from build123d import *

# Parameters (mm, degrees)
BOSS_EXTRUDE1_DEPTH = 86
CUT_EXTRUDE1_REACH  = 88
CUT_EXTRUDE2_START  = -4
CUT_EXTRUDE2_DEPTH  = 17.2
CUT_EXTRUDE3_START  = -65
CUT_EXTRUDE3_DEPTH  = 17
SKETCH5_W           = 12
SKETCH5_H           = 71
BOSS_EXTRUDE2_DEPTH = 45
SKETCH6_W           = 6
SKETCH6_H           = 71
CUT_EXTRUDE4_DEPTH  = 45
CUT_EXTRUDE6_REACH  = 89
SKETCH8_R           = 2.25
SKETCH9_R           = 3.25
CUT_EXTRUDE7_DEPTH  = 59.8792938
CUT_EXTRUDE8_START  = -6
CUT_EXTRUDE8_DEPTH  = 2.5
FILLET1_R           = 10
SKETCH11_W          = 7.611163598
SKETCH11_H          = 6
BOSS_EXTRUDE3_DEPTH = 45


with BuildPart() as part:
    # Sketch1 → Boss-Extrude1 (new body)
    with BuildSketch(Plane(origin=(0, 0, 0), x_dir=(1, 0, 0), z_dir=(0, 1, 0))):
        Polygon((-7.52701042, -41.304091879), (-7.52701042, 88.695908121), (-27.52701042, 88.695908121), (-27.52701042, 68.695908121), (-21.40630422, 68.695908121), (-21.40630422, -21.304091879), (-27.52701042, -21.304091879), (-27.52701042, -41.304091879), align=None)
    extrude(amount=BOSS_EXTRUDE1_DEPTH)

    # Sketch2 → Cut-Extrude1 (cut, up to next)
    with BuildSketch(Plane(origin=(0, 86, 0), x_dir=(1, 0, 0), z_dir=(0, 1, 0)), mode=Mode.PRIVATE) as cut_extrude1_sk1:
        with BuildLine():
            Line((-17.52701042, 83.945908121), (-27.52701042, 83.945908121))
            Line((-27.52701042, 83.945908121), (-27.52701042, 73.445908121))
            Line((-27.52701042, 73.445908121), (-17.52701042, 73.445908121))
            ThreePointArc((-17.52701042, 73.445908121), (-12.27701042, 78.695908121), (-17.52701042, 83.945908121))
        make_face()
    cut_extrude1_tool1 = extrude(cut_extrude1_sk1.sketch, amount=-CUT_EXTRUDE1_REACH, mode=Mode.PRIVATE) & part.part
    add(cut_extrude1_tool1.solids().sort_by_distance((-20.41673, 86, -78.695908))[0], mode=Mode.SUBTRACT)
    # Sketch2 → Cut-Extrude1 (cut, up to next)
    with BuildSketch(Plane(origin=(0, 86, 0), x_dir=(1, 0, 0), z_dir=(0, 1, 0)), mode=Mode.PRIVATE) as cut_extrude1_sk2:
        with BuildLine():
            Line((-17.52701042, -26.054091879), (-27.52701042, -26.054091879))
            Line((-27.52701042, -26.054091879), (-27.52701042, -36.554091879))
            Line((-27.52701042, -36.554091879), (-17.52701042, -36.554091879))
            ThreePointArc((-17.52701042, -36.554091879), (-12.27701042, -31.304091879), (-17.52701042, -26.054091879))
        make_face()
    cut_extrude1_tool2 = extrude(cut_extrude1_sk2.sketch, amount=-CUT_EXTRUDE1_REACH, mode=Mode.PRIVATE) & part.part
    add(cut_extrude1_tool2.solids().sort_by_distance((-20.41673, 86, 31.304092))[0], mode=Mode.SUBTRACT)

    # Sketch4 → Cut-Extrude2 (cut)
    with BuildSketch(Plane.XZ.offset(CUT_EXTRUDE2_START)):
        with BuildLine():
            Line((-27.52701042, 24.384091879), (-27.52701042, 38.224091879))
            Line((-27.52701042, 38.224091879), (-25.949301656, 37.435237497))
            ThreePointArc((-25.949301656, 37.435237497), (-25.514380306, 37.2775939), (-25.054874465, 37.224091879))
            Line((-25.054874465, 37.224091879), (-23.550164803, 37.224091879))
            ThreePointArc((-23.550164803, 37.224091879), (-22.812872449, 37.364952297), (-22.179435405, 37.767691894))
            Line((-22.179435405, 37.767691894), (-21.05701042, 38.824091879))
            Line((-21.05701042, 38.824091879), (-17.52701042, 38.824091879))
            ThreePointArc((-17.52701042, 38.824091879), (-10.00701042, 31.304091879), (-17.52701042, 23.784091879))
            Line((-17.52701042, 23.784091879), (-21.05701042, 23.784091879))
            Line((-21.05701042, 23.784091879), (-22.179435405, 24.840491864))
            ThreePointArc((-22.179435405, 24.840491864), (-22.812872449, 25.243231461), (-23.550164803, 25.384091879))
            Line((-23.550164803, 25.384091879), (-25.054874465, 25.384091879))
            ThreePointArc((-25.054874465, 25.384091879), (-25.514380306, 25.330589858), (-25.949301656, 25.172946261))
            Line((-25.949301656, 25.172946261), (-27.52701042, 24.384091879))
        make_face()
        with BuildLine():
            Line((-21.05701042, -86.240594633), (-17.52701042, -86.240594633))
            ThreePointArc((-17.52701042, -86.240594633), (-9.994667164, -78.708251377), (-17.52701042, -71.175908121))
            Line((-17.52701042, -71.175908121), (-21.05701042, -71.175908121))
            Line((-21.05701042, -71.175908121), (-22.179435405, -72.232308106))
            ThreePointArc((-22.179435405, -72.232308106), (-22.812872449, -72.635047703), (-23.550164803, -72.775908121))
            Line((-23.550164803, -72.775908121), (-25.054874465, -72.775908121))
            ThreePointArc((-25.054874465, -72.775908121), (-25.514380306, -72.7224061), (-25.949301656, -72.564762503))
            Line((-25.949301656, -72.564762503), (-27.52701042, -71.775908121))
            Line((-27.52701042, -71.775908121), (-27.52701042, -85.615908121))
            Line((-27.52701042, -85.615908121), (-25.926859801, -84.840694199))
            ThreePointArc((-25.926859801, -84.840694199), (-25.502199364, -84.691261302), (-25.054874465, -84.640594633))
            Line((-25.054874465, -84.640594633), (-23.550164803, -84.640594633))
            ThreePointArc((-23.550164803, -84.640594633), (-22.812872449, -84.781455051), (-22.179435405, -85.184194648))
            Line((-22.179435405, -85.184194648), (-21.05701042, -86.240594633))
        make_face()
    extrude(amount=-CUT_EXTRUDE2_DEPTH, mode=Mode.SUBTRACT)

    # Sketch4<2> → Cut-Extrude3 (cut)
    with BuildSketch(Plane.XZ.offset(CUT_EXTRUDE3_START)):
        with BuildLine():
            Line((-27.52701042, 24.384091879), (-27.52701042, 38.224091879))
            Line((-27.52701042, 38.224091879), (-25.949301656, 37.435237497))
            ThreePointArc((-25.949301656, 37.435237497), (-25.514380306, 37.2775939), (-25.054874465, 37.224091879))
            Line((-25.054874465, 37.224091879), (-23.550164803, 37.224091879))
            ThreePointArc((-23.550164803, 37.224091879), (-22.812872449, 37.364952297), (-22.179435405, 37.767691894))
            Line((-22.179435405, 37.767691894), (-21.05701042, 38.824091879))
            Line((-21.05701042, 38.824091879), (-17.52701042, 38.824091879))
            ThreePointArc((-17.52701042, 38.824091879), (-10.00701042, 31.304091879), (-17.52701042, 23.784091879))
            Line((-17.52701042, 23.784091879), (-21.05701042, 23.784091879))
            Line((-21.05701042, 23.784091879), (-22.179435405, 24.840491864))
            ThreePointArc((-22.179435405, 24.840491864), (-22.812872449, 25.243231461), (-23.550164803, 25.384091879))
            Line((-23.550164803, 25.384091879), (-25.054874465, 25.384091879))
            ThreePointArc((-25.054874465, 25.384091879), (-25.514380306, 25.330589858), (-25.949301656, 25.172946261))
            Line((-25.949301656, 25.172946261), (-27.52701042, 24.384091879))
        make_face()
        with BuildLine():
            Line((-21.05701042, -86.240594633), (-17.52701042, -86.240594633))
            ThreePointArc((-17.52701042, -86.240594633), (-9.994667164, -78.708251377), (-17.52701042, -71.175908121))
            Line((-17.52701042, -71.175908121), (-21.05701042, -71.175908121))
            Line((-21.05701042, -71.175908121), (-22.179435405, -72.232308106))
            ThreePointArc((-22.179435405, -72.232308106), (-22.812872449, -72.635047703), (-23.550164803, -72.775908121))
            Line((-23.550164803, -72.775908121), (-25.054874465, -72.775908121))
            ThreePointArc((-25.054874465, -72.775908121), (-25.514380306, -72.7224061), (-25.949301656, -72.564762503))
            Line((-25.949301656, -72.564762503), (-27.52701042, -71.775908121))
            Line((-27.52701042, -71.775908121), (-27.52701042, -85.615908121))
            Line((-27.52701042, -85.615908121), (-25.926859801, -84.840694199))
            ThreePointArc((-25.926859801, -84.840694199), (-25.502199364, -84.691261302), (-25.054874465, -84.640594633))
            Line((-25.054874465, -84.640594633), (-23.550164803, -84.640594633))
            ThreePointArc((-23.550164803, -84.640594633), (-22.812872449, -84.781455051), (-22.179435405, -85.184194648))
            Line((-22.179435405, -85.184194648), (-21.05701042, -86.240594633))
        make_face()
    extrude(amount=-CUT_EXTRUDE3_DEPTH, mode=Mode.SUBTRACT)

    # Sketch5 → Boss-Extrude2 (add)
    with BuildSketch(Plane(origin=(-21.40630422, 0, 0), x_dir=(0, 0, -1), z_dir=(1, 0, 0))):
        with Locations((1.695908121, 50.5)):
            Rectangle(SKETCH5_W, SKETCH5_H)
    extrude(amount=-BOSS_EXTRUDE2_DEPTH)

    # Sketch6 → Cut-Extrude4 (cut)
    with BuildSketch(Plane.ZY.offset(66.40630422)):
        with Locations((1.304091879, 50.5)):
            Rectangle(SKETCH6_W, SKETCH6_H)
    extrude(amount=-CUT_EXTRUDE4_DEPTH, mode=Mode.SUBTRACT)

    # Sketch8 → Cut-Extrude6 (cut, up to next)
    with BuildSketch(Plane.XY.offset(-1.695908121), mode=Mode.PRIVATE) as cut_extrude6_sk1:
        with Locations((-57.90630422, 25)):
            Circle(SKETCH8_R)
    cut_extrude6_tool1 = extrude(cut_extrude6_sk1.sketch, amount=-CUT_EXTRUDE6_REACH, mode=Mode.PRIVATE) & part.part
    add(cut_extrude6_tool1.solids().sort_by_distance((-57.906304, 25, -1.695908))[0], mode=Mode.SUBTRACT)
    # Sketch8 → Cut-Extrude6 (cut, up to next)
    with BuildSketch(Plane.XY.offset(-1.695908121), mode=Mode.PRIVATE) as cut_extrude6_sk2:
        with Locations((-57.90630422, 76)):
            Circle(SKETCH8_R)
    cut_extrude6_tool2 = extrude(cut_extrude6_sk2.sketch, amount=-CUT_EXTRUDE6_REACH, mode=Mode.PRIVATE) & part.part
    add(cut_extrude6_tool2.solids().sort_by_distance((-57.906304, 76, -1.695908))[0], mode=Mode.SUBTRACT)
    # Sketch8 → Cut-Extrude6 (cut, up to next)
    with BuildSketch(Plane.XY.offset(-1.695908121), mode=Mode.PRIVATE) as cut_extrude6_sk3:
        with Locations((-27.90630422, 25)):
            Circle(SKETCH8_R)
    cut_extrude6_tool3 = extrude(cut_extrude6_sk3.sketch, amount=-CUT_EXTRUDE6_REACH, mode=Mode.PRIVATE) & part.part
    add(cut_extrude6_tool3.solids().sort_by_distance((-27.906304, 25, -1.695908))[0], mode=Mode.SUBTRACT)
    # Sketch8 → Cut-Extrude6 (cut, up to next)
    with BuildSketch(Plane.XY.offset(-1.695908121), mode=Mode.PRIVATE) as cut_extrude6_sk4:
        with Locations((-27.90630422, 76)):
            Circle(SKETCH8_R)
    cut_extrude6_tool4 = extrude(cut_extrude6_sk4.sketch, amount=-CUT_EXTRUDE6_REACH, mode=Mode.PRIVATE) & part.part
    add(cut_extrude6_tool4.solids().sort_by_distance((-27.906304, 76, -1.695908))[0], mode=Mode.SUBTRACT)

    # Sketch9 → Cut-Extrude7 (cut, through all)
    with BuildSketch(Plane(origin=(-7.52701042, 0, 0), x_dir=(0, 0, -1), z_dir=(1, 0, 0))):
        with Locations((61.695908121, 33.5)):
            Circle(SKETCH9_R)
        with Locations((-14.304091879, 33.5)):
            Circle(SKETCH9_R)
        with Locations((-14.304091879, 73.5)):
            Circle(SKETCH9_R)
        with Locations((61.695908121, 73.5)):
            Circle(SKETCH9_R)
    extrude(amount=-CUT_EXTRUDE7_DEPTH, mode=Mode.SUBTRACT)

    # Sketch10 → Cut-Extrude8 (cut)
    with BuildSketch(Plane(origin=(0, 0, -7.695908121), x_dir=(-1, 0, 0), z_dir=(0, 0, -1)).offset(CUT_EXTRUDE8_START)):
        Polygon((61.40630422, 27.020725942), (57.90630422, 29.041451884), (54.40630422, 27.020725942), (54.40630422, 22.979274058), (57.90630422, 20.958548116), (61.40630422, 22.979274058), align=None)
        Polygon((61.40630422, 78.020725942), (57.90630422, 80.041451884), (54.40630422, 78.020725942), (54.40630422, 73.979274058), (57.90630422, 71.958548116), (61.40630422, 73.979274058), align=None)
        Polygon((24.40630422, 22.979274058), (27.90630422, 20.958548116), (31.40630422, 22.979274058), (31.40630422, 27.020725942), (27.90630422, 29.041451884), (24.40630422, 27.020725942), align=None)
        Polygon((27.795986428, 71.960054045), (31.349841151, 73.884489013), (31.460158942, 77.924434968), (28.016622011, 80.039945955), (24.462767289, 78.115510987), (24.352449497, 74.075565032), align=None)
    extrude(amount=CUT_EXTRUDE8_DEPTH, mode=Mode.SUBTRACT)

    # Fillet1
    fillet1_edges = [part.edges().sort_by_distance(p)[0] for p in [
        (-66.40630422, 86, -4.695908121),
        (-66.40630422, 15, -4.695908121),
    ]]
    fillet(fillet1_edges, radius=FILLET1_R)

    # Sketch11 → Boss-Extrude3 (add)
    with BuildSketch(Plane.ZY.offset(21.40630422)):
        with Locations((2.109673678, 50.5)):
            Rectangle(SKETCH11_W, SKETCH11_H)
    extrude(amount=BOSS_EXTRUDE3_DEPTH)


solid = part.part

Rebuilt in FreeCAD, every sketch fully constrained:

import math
import FreeCAD as App
import Part
import Sketcher
Q = App.Units.Quantity


def edges_at(feature, points):
    """Names of the edges that pass closest to the given points."""
    edges = feature.Shape.Edges
    near = lambda p: min(range(len(edges)), key=lambda i: edges[i].distToShape(Part.Vertex(*p))[0])
    return sorted({f"Edge{near(p) + 1}" for p in points})

doc = App.newDocument("Part")
body = doc.addObject("PartDesign::Body", "Body")

# Sketch on XZ plane
sketch1 = body.newObject("Sketcher::SketchObject", "Sketch")
sketch1.AttachmentSupport = (doc.getObject("XZ_Plane"), [""])
sketch1.MapMode = "FlatFace"
sketch1.addGeometry([
    Part.LineSegment(App.Vector(-8, 41, 0), App.Vector(-8, -89, 0)),  # 0
    Part.LineSegment(App.Vector(-8, -89, 0), App.Vector(-28, -89, 0)),  # 1
    Part.LineSegment(App.Vector(-28, -89, 0), App.Vector(-28, -69, 0)),  # 2
    Part.LineSegment(App.Vector(-28, -69, 0), App.Vector(-21, -69, 0)),  # 3
    Part.LineSegment(App.Vector(-21, -69, 0), App.Vector(-21, 21, 0)),  # 4
    Part.LineSegment(App.Vector(-21, 21, 0), App.Vector(-28, 21, 0)),  # 5
    Part.LineSegment(App.Vector(-28, 21, 0), App.Vector(-28, 41, 0)),  # 6
    Part.LineSegment(App.Vector(-28, 41, 0), App.Vector(-8, 41, 0)),  # 7
], False)
sketch1.addConstraint([
    Sketcher.Constraint("Coincident", 0, 2, 1, 1),
    Sketcher.Constraint("Coincident", 1, 2, 2, 1),
    Sketcher.Constraint("Coincident", 2, 2, 3, 1),
    Sketcher.Constraint("Coincident", 3, 2, 4, 1),
    Sketcher.Constraint("Coincident", 4, 2, 5, 1),
    Sketcher.Constraint("Coincident", 5, 2, 6, 1),
    Sketcher.Constraint("Coincident", 6, 2, 7, 1),
    Sketcher.Constraint("Coincident", 7, 2, 0, 1),
    Sketcher.Constraint("Vertical", 0),
    Sketcher.Constraint("Horizontal", 1),
    Sketcher.Constraint("Vertical", 2),
    Sketcher.Constraint("Horizontal", 3),
    Sketcher.Constraint("Vertical", 4),
    Sketcher.Constraint("Horizontal", 5),
    Sketcher.Constraint("Vertical", 6),
    Sketcher.Constraint("Horizontal", 7),
    Sketcher.Constraint("Vertical", 2, 2, 5, 2),
    Sketcher.Constraint("Equal", 7, 2),
    Sketcher.Constraint("Equal", 2, 6),
    Sketcher.Constraint("DistanceX", 1, 2, 1, 1, 20.0),
    Sketcher.Constraint("DistanceY", 0, 2, 0, 1, 130.0),
    Sketcher.Constraint("DistanceX", 3, 1, 3, 2, 6.120706),
    Sketcher.Constraint("DistanceX", 0, 2, -1, 1, 7.52701),
    Sketcher.Constraint("DistanceY", 0, 2, -1, 1, 88.695908),
])
pad1 = body.newObject("PartDesign::Pad", "Pad")
pad1.Profile = sketch1
pad1.Length = 86
pad1.Reversed = True

# Sketch on XZ plane
sketch2 = body.newObject("Sketcher::SketchObject", "Sketch001")
sketch2.AttachmentSupport = (doc.getObject("XZ_Plane"), [""])
sketch2.MapMode = "FlatFace"
sketch2.AttachmentOffset = App.Placement(App.Vector(0, 0, -86), App.Rotation())
sketch2.addGeometry([
    Part.LineSegment(App.Vector(-18, -84, 0), App.Vector(-28, -84, 0)),
    Part.LineSegment(App.Vector(-28, -84, 0), App.Vector(-28, -73, 0)),
    Part.LineSegment(App.Vector(-28, -73, 0), App.Vector(-18, -73, 0)),
    Part.ArcOfCircle(Part.Circle(App.Vector(-18, -79, 0), App.Vector(0, 0, 1), 5), math.radians(-90), math.radians(90)),
], False)
sketch2.addConstraint([
    Sketcher.Constraint("Coincident", 0, 2, 1, 1),
    Sketcher.Constraint("Coincident", 1, 2, 2, 1),
    Sketcher.Constraint("Tangent", 2, 2, 3, 2),
    Sketcher.Constraint("Tangent", 3, 1, 0, 1),
    Sketcher.Constraint("Horizontal", 0),
    Sketcher.Constraint("Vertical", 1),
    Sketcher.Constraint("Horizontal", 2),
    Sketcher.Constraint("DistanceX", 0, 2, 0, 1, 10.0),
    Sketcher.Constraint("Radius", 3, 5.25),
    Sketcher.Constraint("DistanceX", 3, 3, -1, 1, 17.52701),
    Sketcher.Constraint("DistanceY", 3, 3, -1, 1, 78.695908),
])
pocket1 = body.newObject("PartDesign::Pocket", "Pocket")
pocket1.Profile = sketch2
pocket1.Type = "UpToFirst"
pocket1.Reversed = True

# Sketch on XZ plane
sketch3 = body.newObject("Sketcher::SketchObject", "Sketch002")
sketch3.AttachmentSupport = (doc.getObject("XZ_Plane"), [""])
sketch3.MapMode = "FlatFace"
sketch3.AttachmentOffset = App.Placement(App.Vector(0, 0, -86), App.Rotation())
sketch3.addGeometry([
    Part.LineSegment(App.Vector(-18, 26, 0), App.Vector(-28, 26, 0)),
    Part.LineSegment(App.Vector(-28, 26, 0), App.Vector(-28, 37, 0)),
    Part.LineSegment(App.Vector(-28, 37, 0), App.Vector(-18, 37, 0)),
    Part.ArcOfCircle(Part.Circle(App.Vector(-18, 31, 0), App.Vector(0, 0, 1), 5), math.radians(-90), math.radians(90)),
], False)
sketch3.addConstraint([
    Sketcher.Constraint("Coincident", 0, 2, 1, 1),
    Sketcher.Constraint("Coincident", 1, 2, 2, 1),
    Sketcher.Constraint("Tangent", 2, 2, 3, 2),
    Sketcher.Constraint("Tangent", 3, 1, 0, 1),
    Sketcher.Constraint("Horizontal", 0),
    Sketcher.Constraint("Vertical", 1),
    Sketcher.Constraint("Horizontal", 2),
    Sketcher.Constraint("DistanceX", 0, 2, 0, 1, 10.0),
    Sketcher.Constraint("Radius", 3, 5.25),
    Sketcher.Constraint("DistanceX", 3, 3, -1, 1, 17.52701),
    Sketcher.Constraint("DistanceY", -1, 1, 3, 3, 31.304092),
])
pocket2 = body.newObject("PartDesign::Pocket", "Pocket001")
pocket2.Profile = sketch3
pocket2.Type = "UpToFirst"
pocket2.Reversed = True

# Sketch on XZ plane
sketch4 = body.newObject("Sketcher::SketchObject", "Sketch003")
sketch4.AttachmentSupport = (doc.getObject("XZ_Plane"), [""])
sketch4.MapMode = "FlatFace"
sketch4.AttachmentOffset = App.Placement(App.Vector(0, 0, -4), App.Rotation())
sketch4.addGeometry([
    Part.LineSegment(App.Vector(-27.5, 38.2, 0), App.Vector(-27.5, 24.4, 0)),  # 0
    Part.LineSegment(App.Vector(-27.5, 24.4, 0), App.Vector(-25.9, 25.2, 0)),  # 1
    Part.ArcOfCircle(Part.Circle(App.Vector(-25.1, 23.4, 0), App.Vector(0, 0, 1), 2), math.radians(90), math.radians(117)),  # 2
    Part.LineSegment(App.Vector(-25.1, 25.4, 0), App.Vector(-23.6, 25.4, 0)),  # 3
    Part.ArcOfCircle(Part.Circle(App.Vector(-23.6, 23.4, 0), App.Vector(0, 0, 1), 2), math.radians(47), math.radians(90)),  # 4
    Part.LineSegment(App.Vector(-22.2, 24.8, 0), App.Vector(-21.1, 23.8, 0)),  # 5
    Part.LineSegment(App.Vector(-21.1, 23.8, 0), App.Vector(-17.5, 23.8, 0)),  # 6
    Part.ArcOfCircle(Part.Circle(App.Vector(-17.5, 31.3, 0), App.Vector(0, 0, 1), 7.5), math.radians(-90), math.radians(90)),  # 7
    Part.LineSegment(App.Vector(-17.5, 38.8, 0), App.Vector(-21.1, 38.8, 0)),  # 8
    Part.LineSegment(App.Vector(-21.1, 38.8, 0), App.Vector(-22.2, 37.8, 0)),  # 9
    Part.ArcOfCircle(Part.Circle(App.Vector(-23.6, 39.2, 0), App.Vector(0, 0, 1), 2), math.radians(-90), math.radians(-47)),  # 10
    Part.LineSegment(App.Vector(-23.6, 37.2, 0), App.Vector(-25.1, 37.2, 0)),  # 11
    Part.ArcOfCircle(Part.Circle(App.Vector(-25.1, 39.2, 0), App.Vector(0, 0, 1), 2), math.radians(-117), math.radians(-90)),  # 12
    Part.LineSegment(App.Vector(-25.9, 37.4, 0), App.Vector(-27.5, 38.2, 0)),  # 13
    Part.LineSegment(App.Vector(-21.1, -86.2, 0), App.Vector(-17.5, -86.2, 0)),  # 14
    Part.ArcOfCircle(Part.Circle(App.Vector(-17.5, -78.7, 0), App.Vector(0, 0, 1), 7.5), math.radians(-90), math.radians(90)),  # 15
    Part.LineSegment(App.Vector(-17.5, -71.2, 0), App.Vector(-21.1, -71.2, 0)),  # 16
    Part.LineSegment(App.Vector(-21.1, -71.2, 0), App.Vector(-22.2, -72.2, 0)),  # 17
    Part.ArcOfCircle(Part.Circle(App.Vector(-23.6, -70.8, 0), App.Vector(0, 0, 1), 2), math.radians(-90), math.radians(-47)),  # 18
    Part.LineSegment(App.Vector(-23.6, -72.8, 0), App.Vector(-25.1, -72.8, 0)),  # 19
    Part.ArcOfCircle(Part.Circle(App.Vector(-25.1, -70.8, 0), App.Vector(0, 0, 1), 2), math.radians(-117), math.radians(-90)),  # 20
    Part.LineSegment(App.Vector(-25.9, -72.6, 0), App.Vector(-27.5, -71.8, 0)),  # 21
    Part.LineSegment(App.Vector(-27.5, -71.8, 0), App.Vector(-27.5, -85.6, 0)),  # 22
    Part.LineSegment(App.Vector(-27.5, -85.6, 0), App.Vector(-25.9, -84.8, 0)),  # 23
    Part.ArcOfCircle(Part.Circle(App.Vector(-25.1, -86.6, 0), App.Vector(0, 0, 1), 2), math.radians(90), math.radians(116)),  # 24
    Part.LineSegment(App.Vector(-25.1, -84.6, 0), App.Vector(-23.6, -84.6, 0)),  # 25
    Part.ArcOfCircle(Part.Circle(App.Vector(-23.6, -86.6, 0), App.Vector(0, 0, 1), 2), math.radians(47), math.radians(90)),  # 26
    Part.LineSegment(App.Vector(-22.2, -85.2, 0), App.Vector(-21.1, -86.2, 0)),  # 27
], False)
sketch4.addConstraint([
    Sketcher.Constraint("Coincident", 0, 2, 1, 1),
    Sketcher.Constraint("Tangent", 1, 2, 2, 2),
    Sketcher.Constraint("Tangent", 2, 1, 3, 1),
    Sketcher.Constraint("Tangent", 3, 2, 4, 2),
    Sketcher.Constraint("Tangent", 4, 1, 5, 1),
    Sketcher.Constraint("Coincident", 5, 2, 6, 1),
    Sketcher.Constraint("Tangent", 6, 2, 7, 1),
    Sketcher.Constraint("Tangent", 7, 2, 8, 1),
    Sketcher.Constraint("Coincident", 8, 2, 9, 1),
    Sketcher.Constraint("Tangent", 9, 2, 10, 2),
    Sketcher.Constraint("Tangent", 10, 1, 11, 1),
    Sketcher.Constraint("Tangent", 11, 2, 12, 2),
    Sketcher.Constraint("Tangent", 12, 1, 13, 1),
    Sketcher.Constraint("Coincident", 13, 2, 0, 1),
    Sketcher.Constraint("Tangent", 14, 2, 15, 1),
    Sketcher.Constraint("Tangent", 15, 2, 16, 1),
    Sketcher.Constraint("Coincident", 16, 2, 17, 1),
    Sketcher.Constraint("Tangent", 17, 2, 18, 2),
    Sketcher.Constraint("Tangent", 18, 1, 19, 1),
    Sketcher.Constraint("Tangent", 19, 2, 20, 2),
    Sketcher.Constraint("Tangent", 20, 1, 21, 1),
    Sketcher.Constraint("Coincident", 21, 2, 22, 1),
    Sketcher.Constraint("Coincident", 22, 2, 23, 1),
    Sketcher.Constraint("Tangent", 23, 2, 24, 2),
    Sketcher.Constraint("Tangent", 24, 1, 25, 1),
    Sketcher.Constraint("Tangent", 25, 2, 26, 2),
    Sketcher.Constraint("Tangent", 26, 1, 27, 1),
    Sketcher.Constraint("Coincident", 27, 2, 14, 1),
    Sketcher.Constraint("Vertical", 0),
    Sketcher.Constraint("Horizontal", 3),
    Sketcher.Constraint("Horizontal", 6),
    Sketcher.Constraint("Horizontal", 8),
    Sketcher.Constraint("Horizontal", 11),
    Sketcher.Constraint("Horizontal", 14),
    Sketcher.Constraint("Horizontal", 16),
    Sketcher.Constraint("Horizontal", 19),
    Sketcher.Constraint("Vertical", 22),
    Sketcher.Constraint("Horizontal", 25),
    Sketcher.Constraint("Equal", 2, 4),
    Sketcher.Constraint("Equal", 4, 10),
    Sketcher.Constraint("Equal", 10, 12),
    Sketcher.Constraint("Equal", 12, 18),
    Sketcher.Constraint("Equal", 18, 20),
    Sketcher.Constraint("Equal", 20, 24),
    Sketcher.Constraint("Equal", 24, 26),
    Sketcher.Constraint("Parallel", 9, 17),
    Sketcher.Constraint("Parallel", 13, 21),
    Sketcher.Constraint("Parallel", 5, 27),
    Sketcher.Constraint("Vertical", 4, 3, 10, 3),
    Sketcher.Constraint("Vertical", 2, 3, 12, 3),
    Sketcher.Constraint("Vertical", 7, 3, 15, 3),
    Sketcher.Constraint("Vertical", 10, 3, 18, 3),
    Sketcher.Constraint("Vertical", 12, 3, 20, 3),
    Sketcher.Constraint("Vertical", 20, 3, 24, 3),
    Sketcher.Constraint("Vertical", 18, 3, 26, 3),
    Sketcher.Constraint("Vertical", 5, 2, 8, 2),
    Sketcher.Constraint("Vertical", 4, 1, 9, 2),
    Sketcher.Constraint("Vertical", 1, 2, 12, 1),
    Sketcher.Constraint("Vertical", 8, 2, 16, 2),
    Sketcher.Constraint("Vertical", 13, 2, 21, 2),
    Sketcher.Constraint("Vertical", 16, 2, 27, 2),
    Sketcher.Constraint("Equal", 0, 22),
    Sketcher.Constraint("Radius", 2, 2.0),
    Sketcher.Constraint("Radius", 7, 7.52),
    Sketcher.Constraint("DistanceY", 18, 3, 10, 3, 110.0),
    Sketcher.Constraint("DistanceY", 2, 3, 0, 2, 1.0),
    Sketcher.Constraint("DistanceX", 0, 2, 7, 3, 10.0),
    Sketcher.Constraint("DistanceX", 6, 1, 6, 2, 3.53),
    Sketcher.Constraint("DistanceY", 0, 2, 0, 1, 13.84),
    Sketcher.Constraint("Radius", 15, 7.532343),
    Sketcher.Constraint("DistanceX", 3, 1, 3, 2, 1.50471),
    Sketcher.Constraint("DistanceX", 1, 2, -1, 1, 25.949302),
    Sketcher.Constraint("DistanceY", 4, 1, 3, 2, 0.5436),
    Sketcher.Constraint("DistanceY", -1, 1, 2, 3, 23.384092),
])
pocket3 = body.newObject("PartDesign::Pocket", "Pocket002")
pocket3.Profile = sketch4
pocket3.Length = 17.2

# Sketch on XZ plane
sketch5 = body.newObject("Sketcher::SketchObject", "Sketch004")
sketch5.AttachmentSupport = (doc.getObject("XZ_Plane"), [""])
sketch5.MapMode = "FlatFace"
sketch5.AttachmentOffset = App.Placement(App.Vector(0, 0, -65), App.Rotation())
sketch5.addGeometry([
    Part.LineSegment(App.Vector(-27.5, 38.2, 0), App.Vector(-27.5, 24.4, 0)),  # 0
    Part.LineSegment(App.Vector(-27.5, 24.4, 0), App.Vector(-25.9, 25.2, 0)),  # 1
    Part.ArcOfCircle(Part.Circle(App.Vector(-25.1, 23.4, 0), App.Vector(0, 0, 1), 2), math.radians(90), math.radians(117)),  # 2
    Part.LineSegment(App.Vector(-25.1, 25.4, 0), App.Vector(-23.6, 25.4, 0)),  # 3
    Part.ArcOfCircle(Part.Circle(App.Vector(-23.6, 23.4, 0), App.Vector(0, 0, 1), 2), math.radians(47), math.radians(90)),  # 4
    Part.LineSegment(App.Vector(-22.2, 24.8, 0), App.Vector(-21.1, 23.8, 0)),  # 5
    Part.LineSegment(App.Vector(-21.1, 23.8, 0), App.Vector(-17.5, 23.8, 0)),  # 6
    Part.ArcOfCircle(Part.Circle(App.Vector(-17.5, 31.3, 0), App.Vector(0, 0, 1), 7.5), math.radians(-90), math.radians(90)),  # 7
    Part.LineSegment(App.Vector(-17.5, 38.8, 0), App.Vector(-21.1, 38.8, 0)),  # 8
    Part.LineSegment(App.Vector(-21.1, 38.8, 0), App.Vector(-22.2, 37.8, 0)),  # 9
    Part.ArcOfCircle(Part.Circle(App.Vector(-23.6, 39.2, 0), App.Vector(0, 0, 1), 2), math.radians(-90), math.radians(-47)),  # 10
    Part.LineSegment(App.Vector(-23.6, 37.2, 0), App.Vector(-25.1, 37.2, 0)),  # 11
    Part.ArcOfCircle(Part.Circle(App.Vector(-25.1, 39.2, 0), App.Vector(0, 0, 1), 2), math.radians(-117), math.radians(-90)),  # 12
    Part.LineSegment(App.Vector(-25.9, 37.4, 0), App.Vector(-27.5, 38.2, 0)),  # 13
    Part.LineSegment(App.Vector(-21.1, -86.2, 0), App.Vector(-17.5, -86.2, 0)),  # 14
    Part.ArcOfCircle(Part.Circle(App.Vector(-17.5, -78.7, 0), App.Vector(0, 0, 1), 7.5), math.radians(-90), math.radians(90)),  # 15
    Part.LineSegment(App.Vector(-17.5, -71.2, 0), App.Vector(-21.1, -71.2, 0)),  # 16
    Part.LineSegment(App.Vector(-21.1, -71.2, 0), App.Vector(-22.2, -72.2, 0)),  # 17
    Part.ArcOfCircle(Part.Circle(App.Vector(-23.6, -70.8, 0), App.Vector(0, 0, 1), 2), math.radians(-90), math.radians(-47)),  # 18
    Part.LineSegment(App.Vector(-23.6, -72.8, 0), App.Vector(-25.1, -72.8, 0)),  # 19
    Part.ArcOfCircle(Part.Circle(App.Vector(-25.1, -70.8, 0), App.Vector(0, 0, 1), 2), math.radians(-117), math.radians(-90)),  # 20
    Part.LineSegment(App.Vector(-25.9, -72.6, 0), App.Vector(-27.5, -71.8, 0)),  # 21
    Part.LineSegment(App.Vector(-27.5, -71.8, 0), App.Vector(-27.5, -85.6, 0)),  # 22
    Part.LineSegment(App.Vector(-27.5, -85.6, 0), App.Vector(-25.9, -84.8, 0)),  # 23
    Part.ArcOfCircle(Part.Circle(App.Vector(-25.1, -86.6, 0), App.Vector(0, 0, 1), 2), math.radians(90), math.radians(116)),  # 24
    Part.LineSegment(App.Vector(-25.1, -84.6, 0), App.Vector(-23.6, -84.6, 0)),  # 25
    Part.ArcOfCircle(Part.Circle(App.Vector(-23.6, -86.6, 0), App.Vector(0, 0, 1), 2), math.radians(47), math.radians(90)),  # 26
    Part.LineSegment(App.Vector(-22.2, -85.2, 0), App.Vector(-21.1, -86.2, 0)),  # 27
], False)
sketch5.addConstraint([
    Sketcher.Constraint("Coincident", 0, 2, 1, 1),
    Sketcher.Constraint("Tangent", 1, 2, 2, 2),
    Sketcher.Constraint("Tangent", 2, 1, 3, 1),
    Sketcher.Constraint("Tangent", 3, 2, 4, 2),
    Sketcher.Constraint("Tangent", 4, 1, 5, 1),
    Sketcher.Constraint("Coincident", 5, 2, 6, 1),
    Sketcher.Constraint("Tangent", 6, 2, 7, 1),
    Sketcher.Constraint("Tangent", 7, 2, 8, 1),
    Sketcher.Constraint("Coincident", 8, 2, 9, 1),
    Sketcher.Constraint("Tangent", 9, 2, 10, 2),
    Sketcher.Constraint("Tangent", 10, 1, 11, 1),
    Sketcher.Constraint("Tangent", 11, 2, 12, 2),
    Sketcher.Constraint("Tangent", 12, 1, 13, 1),
    Sketcher.Constraint("Coincident", 13, 2, 0, 1),
    Sketcher.Constraint("Tangent", 14, 2, 15, 1),
    Sketcher.Constraint("Tangent", 15, 2, 16, 1),
    Sketcher.Constraint("Coincident", 16, 2, 17, 1),
    Sketcher.Constraint("Tangent", 17, 2, 18, 2),
    Sketcher.Constraint("Tangent", 18, 1, 19, 1),
    Sketcher.Constraint("Tangent", 19, 2, 20, 2),
    Sketcher.Constraint("Tangent", 20, 1, 21, 1),
    Sketcher.Constraint("Coincident", 21, 2, 22, 1),
    Sketcher.Constraint("Coincident", 22, 2, 23, 1),
    Sketcher.Constraint("Tangent", 23, 2, 24, 2),
    Sketcher.Constraint("Tangent", 24, 1, 25, 1),
    Sketcher.Constraint("Tangent", 25, 2, 26, 2),
    Sketcher.Constraint("Tangent", 26, 1, 27, 1),
    Sketcher.Constraint("Coincident", 27, 2, 14, 1),
    Sketcher.Constraint("Vertical", 0),
    Sketcher.Constraint("Horizontal", 3),
    Sketcher.Constraint("Horizontal", 6),
    Sketcher.Constraint("Horizontal", 8),
    Sketcher.Constraint("Horizontal", 11),
    Sketcher.Constraint("Horizontal", 14),
    Sketcher.Constraint("Horizontal", 16),
    Sketcher.Constraint("Horizontal", 19),
    Sketcher.Constraint("Vertical", 22),
    Sketcher.Constraint("Horizontal", 25),
    Sketcher.Constraint("Equal", 2, 4),
    Sketcher.Constraint("Equal", 4, 10),
    Sketcher.Constraint("Equal", 10, 12),
    Sketcher.Constraint("Equal", 12, 18),
    Sketcher.Constraint("Equal", 18, 20),
    Sketcher.Constraint("Equal", 20, 24),
    Sketcher.Constraint("Equal", 24, 26),
    Sketcher.Constraint("Parallel", 9, 17),
    Sketcher.Constraint("Parallel", 13, 21),
    Sketcher.Constraint("Parallel", 5, 27),
    Sketcher.Constraint("Vertical", 4, 3, 10, 3),
    Sketcher.Constraint("Vertical", 2, 3, 12, 3),
    Sketcher.Constraint("Vertical", 7, 3, 15, 3),
    Sketcher.Constraint("Vertical", 10, 3, 18, 3),
    Sketcher.Constraint("Vertical", 12, 3, 20, 3),
    Sketcher.Constraint("Vertical", 20, 3, 24, 3),
    Sketcher.Constraint("Vertical", 18, 3, 26, 3),
    Sketcher.Constraint("Vertical", 5, 2, 8, 2),
    Sketcher.Constraint("Vertical", 4, 1, 9, 2),
    Sketcher.Constraint("Vertical", 1, 2, 12, 1),
    Sketcher.Constraint("Vertical", 8, 2, 16, 2),
    Sketcher.Constraint("Vertical", 13, 2, 21, 2),
    Sketcher.Constraint("Vertical", 16, 2, 27, 2),
    Sketcher.Constraint("Equal", 0, 22),
    Sketcher.Constraint("Radius", 2, 2.0),
    Sketcher.Constraint("Radius", 7, 7.52),
    Sketcher.Constraint("DistanceY", 18, 3, 10, 3, 110.0),
    Sketcher.Constraint("DistanceY", 2, 3, 0, 2, 1.0),
    Sketcher.Constraint("DistanceX", 0, 2, 7, 3, 10.0),
    Sketcher.Constraint("DistanceX", 6, 1, 6, 2, 3.53),
    Sketcher.Constraint("DistanceY", 0, 2, 0, 1, 13.84),
    Sketcher.Constraint("Radius", 15, 7.532343),
    Sketcher.Constraint("DistanceX", 3, 1, 3, 2, 1.50471),
    Sketcher.Constraint("DistanceX", 1, 2, -1, 1, 25.949302),
    Sketcher.Constraint("DistanceY", 4, 1, 3, 2, 0.5436),
    Sketcher.Constraint("DistanceY", -1, 1, 2, 3, 23.384092),
])
pocket4 = body.newObject("PartDesign::Pocket", "Pocket003")
pocket4.Profile = sketch5
pocket4.Length = 17

# Sketch on YZ plane
sketch6 = body.newObject("Sketcher::SketchObject", "Sketch005")
sketch6.AttachmentSupport = (doc.getObject("YZ_Plane"), [""])
sketch6.MapMode = "FlatFace"
sketch6.AttachmentOffset = App.Placement(App.Vector(0, 0, -21.406304), App.Rotation())
sketch6.addGeometry([
    Part.LineSegment(App.Vector(86, 4, 0), App.Vector(15, 4, 0)),
    Part.LineSegment(App.Vector(15, 4, 0), App.Vector(15, -8, 0)),
    Part.LineSegment(App.Vector(15, -8, 0), App.Vector(86, -8, 0)),
    Part.LineSegment(App.Vector(86, -8, 0), App.Vector(86, 4, 0)),
], False)
sketch6.addConstraint([
    Sketcher.Constraint("Coincident", 0, 2, 1, 1),
    Sketcher.Constraint("Coincident", 1, 2, 2, 1),
    Sketcher.Constraint("Coincident", 2, 2, 3, 1),
    Sketcher.Constraint("Coincident", 3, 2, 0, 1),
    Sketcher.Constraint("Horizontal", 0),
    Sketcher.Constraint("Vertical", 1),
    Sketcher.Constraint("Horizontal", 2),
    Sketcher.Constraint("Vertical", 3),
    Sketcher.Constraint("DistanceX", 0, 2, 0, 1, 71.0),
    Sketcher.Constraint("DistanceY", 1, 2, 1, 1, 12.0),
    Sketcher.Constraint("DistanceX", -1, 1, 0, 2, 15.0),
    Sketcher.Constraint("DistanceY", -1, 1, 0, 2, 4.304092),
])
pad2 = body.newObject("PartDesign::Pad", "Pad001")
pad2.Profile = sketch6
pad2.Length = 45
pad2.Reversed = True

# Sketch on YZ plane
sketch7 = body.newObject("Sketcher::SketchObject", "Sketch006")
sketch7.AttachmentSupport = (doc.getObject("YZ_Plane"), [""])
sketch7.MapMode = "FlatFace"
sketch7.AttachmentOffset = App.Placement(App.Vector(0, 0, -66.406304), App.Rotation())
sketch7.addGeometry([
    Part.LineSegment(App.Vector(86, -2, 0), App.Vector(15, -2, 0)),
    Part.LineSegment(App.Vector(15, -2, 0), App.Vector(15, 4, 0)),
    Part.LineSegment(App.Vector(15, 4, 0), App.Vector(86, 4, 0)),
    Part.LineSegment(App.Vector(86, 4, 0), App.Vector(86, -2, 0)),
], False)
sketch7.addConstraint([
    Sketcher.Constraint("Coincident", 0, 2, 1, 1),
    Sketcher.Constraint("Coincident", 1, 2, 2, 1),
    Sketcher.Constraint("Coincident", 2, 2, 3, 1),
    Sketcher.Constraint("Coincident", 3, 2, 0, 1),
    Sketcher.Constraint("Horizontal", 0),
    Sketcher.Constraint("Vertical", 1),
    Sketcher.Constraint("Horizontal", 2),
    Sketcher.Constraint("Vertical", 3),
    Sketcher.Constraint("DistanceX", 0, 2, 0, 1, 71.0),
    Sketcher.Constraint("DistanceY", 1, 1, 1, 2, 6.0),
    Sketcher.Constraint("DistanceX", -1, 1, 0, 2, 15.0),
    Sketcher.Constraint("DistanceY", 0, 2, -1, 1, 1.695908),
])
pocket5 = body.newObject("PartDesign::Pocket", "Pocket004")
pocket5.Profile = sketch7
pocket5.Length = 45
pocket5.Reversed = True

# Sketch on XY plane
sketch8 = body.newObject("Sketcher::SketchObject", "Sketch007")
sketch8.AttachmentSupport = (doc.getObject("XY_Plane"), [""])
sketch8.MapMode = "FlatFace"
sketch8.AttachmentOffset = App.Placement(App.Vector(0, 0, -1.695908), App.Rotation())
sketch8.addGeometry(Part.Circle(App.Vector(-57.9, 25, 0), App.Vector(0, 0, 1), 2.2), False)
sketch8.addConstraint([
    Sketcher.Constraint("Diameter", 0, 4.5),
    Sketcher.Constraint("DistanceY", -1, 1, 0, 3, 25.0),
    Sketcher.Constraint("DistanceX", 0, 3, -1, 1, 57.906304),
])
pocket6 = body.newObject("PartDesign::Pocket", "Pocket005")
pocket6.Profile = sketch8
pocket6.Type = "UpToFirst"

# Sketch on XY plane
sketch9 = body.newObject("Sketcher::SketchObject", "Sketch008")
sketch9.AttachmentSupport = (doc.getObject("XY_Plane"), [""])
sketch9.MapMode = "FlatFace"
sketch9.AttachmentOffset = App.Placement(App.Vector(0, 0, -1.695908), App.Rotation())
sketch9.addGeometry(Part.Circle(App.Vector(-57.9, 76, 0), App.Vector(0, 0, 1), 2.2), False)
sketch9.addConstraint([
    Sketcher.Constraint("Diameter", 0, 4.5),
    Sketcher.Constraint("DistanceY", -1, 1, 0, 3, 76.0),
    Sketcher.Constraint("DistanceX", 0, 3, -1, 1, 57.906304),
])
pocket7 = body.newObject("PartDesign::Pocket", "Pocket006")
pocket7.Profile = sketch9
pocket7.Type = "UpToFirst"

# Sketch on XY plane
sketch10 = body.newObject("Sketcher::SketchObject", "Sketch009")
sketch10.AttachmentSupport = (doc.getObject("XY_Plane"), [""])
sketch10.MapMode = "FlatFace"
sketch10.AttachmentOffset = App.Placement(App.Vector(0, 0, -1.695908), App.Rotation())
sketch10.addGeometry(Part.Circle(App.Vector(-27.9, 25, 0), App.Vector(0, 0, 1), 2.2), False)
sketch10.addConstraint([
    Sketcher.Constraint("Diameter", 0, 4.5),
    Sketcher.Constraint("DistanceY", -1, 1, 0, 3, 25.0),
    Sketcher.Constraint("DistanceX", 0, 3, -1, 1, 27.906304),
])
pocket8 = body.newObject("PartDesign::Pocket", "Pocket007")
pocket8.Profile = sketch10
pocket8.Type = "UpToFirst"

# Sketch on XY plane
sketch11 = body.newObject("Sketcher::SketchObject", "Sketch010")
sketch11.AttachmentSupport = (doc.getObject("XY_Plane"), [""])
sketch11.MapMode = "FlatFace"
sketch11.AttachmentOffset = App.Placement(App.Vector(0, 0, -1.695908), App.Rotation())
sketch11.addGeometry(Part.Circle(App.Vector(-27.9, 76, 0), App.Vector(0, 0, 1), 2.2), False)
sketch11.addConstraint([
    Sketcher.Constraint("Diameter", 0, 4.5),
    Sketcher.Constraint("DistanceY", -1, 1, 0, 3, 76.0),
    Sketcher.Constraint("DistanceX", 0, 3, -1, 1, 27.906304),
])
pocket9 = body.newObject("PartDesign::Pocket", "Pocket008")
pocket9.Profile = sketch11
pocket9.Type = "UpToFirst"

# Sketch on YZ plane
sketch12 = body.newObject("Sketcher::SketchObject", "Sketch011")
sketch12.AttachmentSupport = (doc.getObject("YZ_Plane"), [""])
sketch12.MapMode = "FlatFace"
sketch12.AttachmentOffset = App.Placement(App.Vector(0, 0, -7.52701), App.Rotation())
sketch12.addGeometry([
    Part.Circle(App.Vector(33.5, -61.7, 0), App.Vector(0, 0, 1), 3.2),
    Part.Circle(App.Vector(33.5, 14.3, 0), App.Vector(0, 0, 1), 3.2),
    Part.Circle(App.Vector(73.5, 14.3, 0), App.Vector(0, 0, 1), 3.2),
    Part.Circle(App.Vector(73.5, -61.7, 0), App.Vector(0, 0, 1), 3.2),
], False)
sketch12.addConstraint([
    Sketcher.Constraint("Equal", 0, 1),
    Sketcher.Constraint("Equal", 1, 2),
    Sketcher.Constraint("Equal", 2, 3),
    Sketcher.Constraint("Horizontal", 1, 3, 2, 3),
    Sketcher.Constraint("Horizontal", 0, 3, 3, 3),
    Sketcher.Constraint("Vertical", 0, 3, 1, 3),
    Sketcher.Constraint("Vertical", 2, 3, 3, 3),
    Sketcher.Constraint("Diameter", 0, 6.5),
    Sketcher.Constraint("DistanceY", 0, 3, 1, 3, 76.0),
    Sketcher.Constraint("DistanceX", 1, 3, 2, 3, 40.0),
    Sketcher.Constraint("DistanceX", -1, 1, 0, 3, 33.5),
    Sketcher.Constraint("DistanceY", 0, 3, -1, 1, 61.695908),
])
pocket10 = body.newObject("PartDesign::Pocket", "Pocket009")
pocket10.Profile = sketch12
pocket10.Type = "ThroughAll"

# Sketch on XY plane
sketch13 = body.newObject("Sketcher::SketchObject", "Sketch012")
sketch13.AttachmentSupport = (doc.getObject("XY_Plane"), [""])
sketch13.MapMode = "FlatFace"
sketch13.AttachmentOffset = App.Placement(App.Vector(0, 0, -1.695908), App.Rotation())
sketch13.addGeometry([
    Part.LineSegment(App.Vector(-61.4, 27, 0), App.Vector(-57.9, 29, 0)),  # 0
    Part.LineSegment(App.Vector(-57.9, 29, 0), App.Vector(-54.4, 27, 0)),  # 1
    Part.LineSegment(App.Vector(-54.4, 27, 0), App.Vector(-54.4, 23, 0)),  # 2
    Part.LineSegment(App.Vector(-54.4, 23, 0), App.Vector(-57.9, 21, 0)),  # 3
    Part.LineSegment(App.Vector(-57.9, 21, 0), App.Vector(-61.4, 23, 0)),  # 4
    Part.LineSegment(App.Vector(-61.4, 23, 0), App.Vector(-61.4, 27, 0)),  # 5
    Part.LineSegment(App.Vector(-61.4, 78, 0), App.Vector(-57.9, 80, 0)),  # 6
    Part.LineSegment(App.Vector(-57.9, 80, 0), App.Vector(-54.4, 78, 0)),  # 7
    Part.LineSegment(App.Vector(-54.4, 78, 0), App.Vector(-54.4, 74, 0)),  # 8
    Part.LineSegment(App.Vector(-54.4, 74, 0), App.Vector(-57.9, 72, 0)),  # 9
    Part.LineSegment(App.Vector(-57.9, 72, 0), App.Vector(-61.4, 74, 0)),  # 10
    Part.LineSegment(App.Vector(-61.4, 74, 0), App.Vector(-61.4, 78, 0)),  # 11
    Part.LineSegment(App.Vector(-24.4, 23, 0), App.Vector(-27.9, 21, 0)),  # 12
    Part.LineSegment(App.Vector(-27.9, 21, 0), App.Vector(-31.4, 23, 0)),  # 13
    Part.LineSegment(App.Vector(-31.4, 23, 0), App.Vector(-31.4, 27, 0)),  # 14
    Part.LineSegment(App.Vector(-31.4, 27, 0), App.Vector(-27.9, 29, 0)),  # 15
    Part.LineSegment(App.Vector(-27.9, 29, 0), App.Vector(-24.4, 27, 0)),  # 16
    Part.LineSegment(App.Vector(-24.4, 27, 0), App.Vector(-24.4, 23, 0)),  # 17
    Part.LineSegment(App.Vector(-27.8, 72, 0), App.Vector(-31.3, 73.9, 0)),  # 18
    Part.LineSegment(App.Vector(-31.3, 73.9, 0), App.Vector(-31.5, 77.9, 0)),  # 19
    Part.LineSegment(App.Vector(-31.5, 77.9, 0), App.Vector(-28, 80, 0)),  # 20
    Part.LineSegment(App.Vector(-28, 80, 0), App.Vector(-24.5, 78.1, 0)),  # 21
    Part.LineSegment(App.Vector(-24.5, 78.1, 0), App.Vector(-24.4, 74.1, 0)),  # 22
    Part.LineSegment(App.Vector(-24.4, 74.1, 0), App.Vector(-27.8, 72, 0)),  # 23
], False)
sketch13.addConstraint([
    Sketcher.Constraint("Coincident", 0, 2, 1, 1),
    Sketcher.Constraint("Coincident", 1, 2, 2, 1),
    Sketcher.Constraint("Coincident", 2, 2, 3, 1),
    Sketcher.Constraint("Coincident", 3, 2, 4, 1),
    Sketcher.Constraint("Coincident", 4, 2, 5, 1),
    Sketcher.Constraint("Coincident", 5, 2, 0, 1),
    Sketcher.Constraint("Coincident", 6, 2, 7, 1),
    Sketcher.Constraint("Coincident", 7, 2, 8, 1),
    Sketcher.Constraint("Coincident", 8, 2, 9, 1),
    Sketcher.Constraint("Coincident", 9, 2, 10, 1),
    Sketcher.Constraint("Coincident", 10, 2, 11, 1),
    Sketcher.Constraint("Coincident", 11, 2, 6, 1),
    Sketcher.Constraint("Coincident", 12, 2, 13, 1),
    Sketcher.Constraint("Coincident", 13, 2, 14, 1),
    Sketcher.Constraint("Coincident", 14, 2, 15, 1),
    Sketcher.Constraint("Coincident", 15, 2, 16, 1),
    Sketcher.Constraint("Coincident", 16, 2, 17, 1),
    Sketcher.Constraint("Coincident", 17, 2, 12, 1),
    Sketcher.Constraint("Coincident", 18, 2, 19, 1),
    Sketcher.Constraint("Coincident", 19, 2, 20, 1),
    Sketcher.Constraint("Coincident", 20, 2, 21, 1),
    Sketcher.Constraint("Coincident", 21, 2, 22, 1),
    Sketcher.Constraint("Coincident", 22, 2, 23, 1),
    Sketcher.Constraint("Coincident", 23, 2, 18, 1),
    Sketcher.Constraint("Vertical", 2),
    Sketcher.Constraint("Vertical", 5),
    Sketcher.Constraint("Vertical", 8),
    Sketcher.Constraint("Vertical", 11),
    Sketcher.Constraint("Vertical", 14),
    Sketcher.Constraint("Vertical", 17),
    Sketcher.Constraint("Parallel", 0, 3),
    Sketcher.Constraint("Parallel", 1, 4),
    Sketcher.Constraint("Parallel", 3, 6),
    Sketcher.Constraint("Parallel", 4, 7),
    Sketcher.Constraint("Parallel", 6, 9),
    Sketcher.Constraint("Parallel", 7, 10),
    Sketcher.Constraint("Parallel", 9, 12),
    Sketcher.Constraint("Parallel", 10, 13),
    Sketcher.Constraint("Parallel", 12, 15),
    Sketcher.Constraint("Parallel", 13, 16),
    Sketcher.Constraint("Parallel", 18, 21),
    Sketcher.Constraint("Parallel", 19, 22),
    Sketcher.Constraint("Parallel", 20, 23),
    Sketcher.Constraint("Horizontal", 2, 2, 4, 2),
    Sketcher.Constraint("Horizontal", 1, 2, 5, 2),
    Sketcher.Constraint("Horizontal", 8, 2, 10, 2),
    Sketcher.Constraint("Horizontal", 7, 2, 11, 2),
    Sketcher.Constraint("Horizontal", 3, 2, 12, 2),
    Sketcher.Constraint("Horizontal", 4, 2, 13, 2),
    Sketcher.Constraint("Horizontal", 5, 2, 14, 2),
    Sketcher.Constraint("Horizontal", 0, 2, 15, 2),
    Sketcher.Constraint("Horizontal", 14, 2, 16, 2),
    Sketcher.Constraint("Vertical", 0, 2, 3, 2),
    Sketcher.Constraint("Vertical", 3, 2, 6, 2),
    Sketcher.Constraint("Vertical", 2, 2, 7, 2),
    Sketcher.Constraint("Equal", 5, 8),
    Sketcher.Constraint("Equal", 16, 18),
    Sketcher.Constraint("Equal", 18, 19),
    Sketcher.Constraint("Equal", 19, 20),
    Sketcher.Constraint("Equal", 20, 21),
    Sketcher.Constraint("Angle", 0, Q("30 deg")),
    Sketcher.Constraint("DistanceX", 4, 2, 2, 2, 7.0),
    Sketcher.Constraint("DistanceY", 0, 2, 6, 2, 51.0),
    Sketcher.Constraint("DistanceX", 3, 2, 12, 2, 30.0),
    Sketcher.Constraint("DistanceY", 2, 2, 2, 1, 4.041452),
    Sketcher.Constraint("DistanceY", -1, 1, 0, 2, 29.041452),
    Sketcher.Constraint("DistanceX", 18, 2, -1, 1, 31.349841),
    Sketcher.Constraint("DistanceY", -1, 1, 18, 2, 73.884489),
    Sketcher.Constraint("DistanceX", 19, 2, -1, 1, 31.460159),
    Sketcher.Constraint("DistanceY", -1, 1, 21, 2, 78.115511),
    Sketcher.Constraint("DistanceX", 22, 2, -1, 1, 24.352449),
    Sketcher.Constraint("DistanceX", 0, 2, -1, 1, 57.906304),
])
pocket11 = body.newObject("PartDesign::Pocket", "Pocket010")
pocket11.Profile = sketch13
pocket11.Length = 2.5
doc.recompute()

fillet = body.newObject("PartDesign::Fillet", "Fillet")
fillet.Base = (pocket11, edges_at(pocket11, [(-66.406, 86, -4.696), (-66.406, 15, -4.696)]))
fillet.Radius = 10

# Sketch on YZ plane
sketch14 = body.newObject("Sketcher::SketchObject", "Sketch013")
sketch14.AttachmentSupport = (doc.getObject("YZ_Plane"), [""])
sketch14.MapMode = "FlatFace"
sketch14.AttachmentOffset = App.Placement(App.Vector(0, 0, -21.406304), App.Rotation())
sketch14.addGeometry([
    Part.LineSegment(App.Vector(54, -2, 0), App.Vector(48, -2, 0)),
    Part.LineSegment(App.Vector(48, -2, 0), App.Vector(48, 6, 0)),
    Part.LineSegment(App.Vector(48, 6, 0), App.Vector(54, 6, 0)),
    Part.LineSegment(App.Vector(54, 6, 0), App.Vector(54, -2, 0)),
], False)
sketch14.addConstraint([
    Sketcher.Constraint("Coincident", 0, 2, 1, 1),
    Sketcher.Constraint("Coincident", 1, 2, 2, 1),
    Sketcher.Constraint("Coincident", 2, 2, 3, 1),
    Sketcher.Constraint("Coincident", 3, 2, 0, 1),
    Sketcher.Constraint("Horizontal", 0),
    Sketcher.Constraint("Vertical", 1),
    Sketcher.Constraint("Horizontal", 2),
    Sketcher.Constraint("Vertical", 3),
    Sketcher.Constraint("DistanceX", 0, 2, 0, 1, 6.0),
    Sketcher.Constraint("DistanceX", -1, 1, 0, 2, 47.5),
    Sketcher.Constraint("DistanceY", 1, 1, 1, 2, 7.611164),
    Sketcher.Constraint("DistanceY", 0, 2, -1, 1, 1.695908),
])
pad3 = body.newObject("PartDesign::Pad", "Pad002")
pad3.Profile = sketch14
pad3.Length = 45
pad3.Reversed = True

doc.recompute()
